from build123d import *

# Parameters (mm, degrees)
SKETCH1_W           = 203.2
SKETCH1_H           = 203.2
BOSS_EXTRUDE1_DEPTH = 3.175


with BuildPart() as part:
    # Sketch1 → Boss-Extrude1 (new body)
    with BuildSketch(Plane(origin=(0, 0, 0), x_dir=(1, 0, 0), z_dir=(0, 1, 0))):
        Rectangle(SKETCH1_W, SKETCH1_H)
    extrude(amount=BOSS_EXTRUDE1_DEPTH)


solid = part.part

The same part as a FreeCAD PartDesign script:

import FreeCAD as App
import Part
import Sketcher

V = App.Vector
Q = App.Units.Quantity

doc = App.newDocument("Part")
body = doc.addObject("PartDesign::Body", "Body")

# Sketch on XZ plane
sketch1 = body.newObject("Sketcher::SketchObject", "Sketch")
sketch1.AttachmentSupport = (doc.getObject("XZ_Plane"), [""])
sketch1.MapMode = "FlatFace"
sketch1.addGeometry(Part.LineSegment(V(-102, -102, 0), V(-102, 102, 0)), False)
sketch1.addGeometry(Part.LineSegment(V(-102, 102, 0), V(102, 102, 0)), False)
sketch1.addGeometry(Part.LineSegment(V(102, 102, 0), V(102, -102, 0)), False)
sketch1.addGeometry(Part.LineSegment(V(102, -102, 0), V(-102, -102, 0)), False)
sketch1.addConstraint(Sketcher.Constraint("Coincident", 0, 2, 1, 1))
sketch1.addConstraint(Sketcher.Constraint("Coincident", 1, 2, 2, 1))
sketch1.addConstraint(Sketcher.Constraint("Coincident", 2, 2, 3, 1))
sketch1.addConstraint(Sketcher.Constraint("Coincident", 3, 2, 0, 1))
sketch1.addConstraint(Sketcher.Constraint("Vertical", 0))
sketch1.addConstraint(Sketcher.Constraint("Horizontal", 1))
sketch1.addConstraint(Sketcher.Constraint("Vertical", 2))
sketch1.addConstraint(Sketcher.Constraint("Horizontal", 3))
sketch1.addConstraint(Sketcher.Constraint("Symmetric", 0, 2, 2, 2, -1, 1))
sketch1.addConstraint(Sketcher.Constraint("Equal", 3, 0))
sketch1.addConstraint(Sketcher.Constraint("DistanceX", 1, 1, 1, 2, Q("8 in")))
pad1 = body.newObject("PartDesign::Pad", "Pad")
pad1.Profile = sketch1
pad1.Length = Q("0.125 in")
pad1.Reversed = True

doc.recompute()
